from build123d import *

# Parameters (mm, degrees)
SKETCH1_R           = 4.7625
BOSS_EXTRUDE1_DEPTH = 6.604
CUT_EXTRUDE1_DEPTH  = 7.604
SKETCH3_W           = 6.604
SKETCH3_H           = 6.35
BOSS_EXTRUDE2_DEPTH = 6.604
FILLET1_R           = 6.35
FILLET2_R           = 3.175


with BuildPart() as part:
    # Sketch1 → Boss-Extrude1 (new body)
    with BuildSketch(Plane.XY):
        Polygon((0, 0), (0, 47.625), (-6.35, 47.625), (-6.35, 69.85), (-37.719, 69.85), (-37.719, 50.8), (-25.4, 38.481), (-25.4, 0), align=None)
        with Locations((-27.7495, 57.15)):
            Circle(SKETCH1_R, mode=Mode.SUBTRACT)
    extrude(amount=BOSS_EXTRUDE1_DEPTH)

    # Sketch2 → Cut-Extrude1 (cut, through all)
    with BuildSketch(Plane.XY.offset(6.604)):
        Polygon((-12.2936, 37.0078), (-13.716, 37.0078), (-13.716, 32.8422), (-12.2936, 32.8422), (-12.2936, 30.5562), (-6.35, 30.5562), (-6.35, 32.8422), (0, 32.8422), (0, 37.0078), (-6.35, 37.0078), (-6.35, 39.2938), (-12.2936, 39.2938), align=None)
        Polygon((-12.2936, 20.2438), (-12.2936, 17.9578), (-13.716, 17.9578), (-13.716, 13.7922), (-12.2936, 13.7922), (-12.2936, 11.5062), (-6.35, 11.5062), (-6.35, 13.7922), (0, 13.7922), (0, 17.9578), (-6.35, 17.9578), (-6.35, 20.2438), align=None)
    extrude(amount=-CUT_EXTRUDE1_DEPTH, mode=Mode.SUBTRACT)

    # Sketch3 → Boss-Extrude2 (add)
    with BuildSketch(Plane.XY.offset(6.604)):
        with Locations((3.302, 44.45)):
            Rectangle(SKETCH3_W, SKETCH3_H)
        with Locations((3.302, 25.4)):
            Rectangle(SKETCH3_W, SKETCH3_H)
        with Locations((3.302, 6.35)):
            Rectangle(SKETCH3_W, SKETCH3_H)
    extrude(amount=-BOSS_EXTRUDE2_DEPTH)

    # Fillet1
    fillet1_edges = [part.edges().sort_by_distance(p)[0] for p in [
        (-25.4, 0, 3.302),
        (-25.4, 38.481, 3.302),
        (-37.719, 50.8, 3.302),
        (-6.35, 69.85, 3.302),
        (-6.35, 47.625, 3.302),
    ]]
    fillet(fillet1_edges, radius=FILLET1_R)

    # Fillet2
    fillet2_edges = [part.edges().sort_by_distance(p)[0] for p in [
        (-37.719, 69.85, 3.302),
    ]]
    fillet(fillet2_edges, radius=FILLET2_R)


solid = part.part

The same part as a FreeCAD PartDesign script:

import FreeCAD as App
import Part
import Sketcher
Q = App.Units.Quantity


def edges_at(feature, points):
    """Names of the edges that pass closest to the given points."""
    edges = feature.Shape.Edges
    near = lambda p: min(range(len(edges)), key=lambda i: edges[i].distToShape(Part.Vertex(*p))[0])
    return sorted({f"Edge{near(p) + 1}" for p in points})


def add_polygon(sketch, points):
    """Adds a closed chain of lines whose ends are joined by coincident constraints."""
    first, n = sketch.GeometryCount, len(points)
    for a, b in zip(points, points[1:] + points[:1]):
        sketch.addGeometry(Part.LineSegment(App.Vector(*a, 0), App.Vector(*b, 0)), False)
    for i in range(n):
        sketch.addConstraint(Sketcher.Constraint("Coincident", first + i, 2, first + (i + 1) % n, 1))

doc = App.newDocument("Part")
params = doc.addObject("Spreadsheet::Sheet", "Params")
for row, (alias, value) in enumerate([
    ("sketch1_width", "1 in"),
    ("sketch1_diameter", "0.375 in"),
    ("sketch1_width2", "0.25 in"),
    ("sketch1_height", "0.75 in"),
    ("sketch1_width3", "1.235 in"),
    ("pad1_length", "0.26 in"),
    ("sketch2_width", "0.25 in"),
    ("sketch2_height", "0.09 in"),
    ("sketch2_width2", "0.056 in"),
    ("sketch2_width3", "0.234 in"),
    ("sketch2_height2", "0.164 in"),
    ("sketch3_width", "0.26 in"),
    ("sketch3_height", "0.25 in"),
    ("pad2_length", "0.26 in"),
    ("fillet_radius", "0.25 in"),
    ("fillet2_radius", "0.125 in"),
], start=1):
    params.set(f"A{row}", alias)
    params.set(f"B{row}", "=" + value)
    params.setAlias(f"B{row}", alias)

body = doc.addObject("PartDesign::Body", "Body")

sketch1 = body.newObject("Sketcher::SketchObject", "Sketch")
sketch1.AttachmentSupport = (doc.getObject("XY_Plane"), [""])
sketch1.MapMode = "FlatFace"
add_polygon(sketch1, [(0, 0), (0, 47.625), (-6.35, 47.625), (-6.35, 69.85), (-37.719, 69.85), (-37.719, 50.8), (-25.4, 38.481), (-25.4, 0)])
sketch1.addGeometry(Part.Circle(App.Vector(-27.7495, 57.15, 0), App.Vector(0, 0, 1), 4.7625), False)
sketch1.addConstraint([
    Sketcher.Constraint("Vertical", 0),
    Sketcher.Constraint("Horizontal", 1),
    Sketcher.Constraint("Vertical", 2),
    Sketcher.Constraint("Horizontal", 3),
    Sketcher.Constraint("Vertical", 4),
    Sketcher.Constraint("Vertical", 6),
    Sketcher.Constraint("Horizontal", 7),
    Sketcher.Constraint("Coincident", 7, 2, -1, 1),
    Sketcher.Constraint("DistanceX", 7, 1, 7, 2, Q("1 in")),
    Sketcher.Constraint("Diameter", 8, Q("0.375 in")),
    Sketcher.Constraint("DistanceY", -1, 1, 4, 2, Q("2 in")),
    Sketcher.Constraint("Angle", 5, Q("-45 deg")),
    Sketcher.Constraint("DistanceX", 1, 2, 1, 1, Q("0.25 in")),
    Sketcher.Constraint("DistanceY", 4, 2, 4, 1, Q("0.75 in")),
    Sketcher.Constraint("DistanceY", 8, 3, 2, 2, Q("0.5 in")),
    Sketcher.Constraint("DistanceX", 3, 2, 3, 1, Q("1.235 in")),
    Sketcher.Constraint("DistanceY", 0, 1, 0, 2, Q("1.875 in")),
    Sketcher.Constraint("DistanceX", 8, 3, -1, 1, Q("1.0925 in")),
])
sketch1.setExpression("Constraints[16]", "Params.sketch1_width")
sketch1.setExpression("Constraints[17]", "Params.sketch1_diameter")
sketch1.setExpression("Constraints[20]", "Params.sketch1_width2")
sketch1.setExpression("Constraints[21]", "Params.sketch1_height")
sketch1.setExpression("Constraints[23]", "Params.sketch1_width3")
pad1 = body.newObject("PartDesign::Pad", "Pad")
pad1.Profile = sketch1
pad1.setExpression("Length", "Params.pad1_length")

sketch2 = body.newObject("Sketcher::SketchObject", "Sketch001")
sketch2.AttachmentSupport = (doc.getObject("XY_Plane"), [""])
sketch2.MapMode = "FlatFace"
sketch2.AttachmentOffset = App.Placement(App.Vector(0, 0, 0.26 * 25.4), App.Rotation())
add_polygon(sketch2, [(-12.2936, 37.0078), (-13.716, 37.0078), (-13.716, 32.8422), (-12.2936, 32.8422), (-12.2936, 30.5562), (-6.35, 30.5562), (-6.35, 32.8422), (0, 32.8422), (0, 37.0078), (-6.35, 37.0078), (-6.35, 39.2938), (-12.2936, 39.2938)])
add_polygon(sketch2, [(-12.2936, 20.2438), (-12.2936, 17.9578), (-13.716, 17.9578), (-13.716, 13.7922), (-12.2936, 13.7922), (-12.2936, 11.5062), (-6.35, 11.5062), (-6.35, 13.7922), (0, 13.7922), (0, 17.9578), (-6.35, 17.9578), (-6.35, 20.2438)])
sketch2.addConstraint([
    Sketcher.Constraint("Horizontal", 0),
    Sketcher.Constraint("Vertical", 1),
    Sketcher.Constraint("Horizontal", 2),
    Sketcher.Constraint("Vertical", 3),
    Sketcher.Constraint("Horizontal", 4),
    Sketcher.Constraint("Vertical", 5),
    Sketcher.Constraint("Horizontal", 6),
    Sketcher.Constraint("Vertical", 7),
    Sketcher.Constraint("Horizontal", 8),
    Sketcher.Constraint("Vertical", 9),
    Sketcher.Constraint("Horizontal", 10),
    Sketcher.Constraint("Vertical", 11),
    Sketcher.Constraint("Vertical", 12),
    Sketcher.Constraint("Horizontal", 13),
    Sketcher.Constraint("Vertical", 14),
    Sketcher.Constraint("Horizontal", 15),
    Sketcher.Constraint("Vertical", 16),
    Sketcher.Constraint("Horizontal", 17),
    Sketcher.Constraint("Vertical", 18),
    Sketcher.Constraint("Horizontal", 19),
    Sketcher.Constraint("Vertical", 20),
    Sketcher.Constraint("Horizontal", 21),
    Sketcher.Constraint("Vertical", 22),
    Sketcher.Constraint("Horizontal", 23),
    Sketcher.Constraint("PointOnObject", 6, 2, -2),
    Sketcher.Constraint("PointOnObject", 19, 2, -2),
    Sketcher.Constraint("Horizontal", 2, 2, 5, 2),
    Sketcher.Constraint("Horizontal", 0, 2, 7, 2),
    Sketcher.Constraint("Horizontal", 15, 2, 18, 2),
    Sketcher.Constraint("Horizontal", 13, 2, 20, 2),
    Sketcher.Constraint("Vertical", 5, 2, 8, 2),
    Sketcher.Constraint("Vertical", 3, 2, 10, 2),
    Sketcher.Constraint("Vertical", 11, 2, 12, 2),
    Sketcher.Constraint("Vertical", 1, 2, 13, 2),
    Sketcher.Constraint("Vertical", 12, 2, 15, 2),
    Sketcher.Constraint("Vertical", 9, 2, 17, 2),
    Sketcher.Constraint("Vertical", 18, 2, 21, 2),
    Sketcher.Constraint("Equal", 5, 9),
    Sketcher.Constraint("Equal", 11, 12),
    Sketcher.Constraint("Equal", 7, 14),
    Sketcher.Constraint("Equal", 12, 16),
    Sketcher.Constraint("DistanceX", 6, 1, 6, 2, Q("0.25 in")),
    Sketcher.Constraint("DistanceY", 3, 2, 3, 1, Q("0.09 in")),
    Sketcher.Constraint("DistanceX", 0, 2, 0, 1, Q("0.056 in")),
    Sketcher.Constraint("DistanceX", 4, 1, 4, 2, Q("0.234 in")),
    Sketcher.Constraint("DistanceY", 1, 2, 1, 1, Q("0.164 in")),
    Sketcher.Constraint("DistanceY", 14, 2, 3, 2, Q("0.66 in")),
    Sketcher.Constraint("DistanceY", -1, 1, 0, 2, Q("1.457 in")),
])
sketch2.setExpression("Constraints[65]", "Params.sketch2_width")
sketch2.setExpression("Constraints[66]", "Params.sketch2_height")
sketch2.setExpression("Constraints[67]", "Params.sketch2_width2")
sketch2.setExpression("Constraints[68]", "Params.sketch2_width3")
sketch2.setExpression("Constraints[69]", "Params.sketch2_height2")
pocket1 = body.newObject("PartDesign::Pocket", "Pocket")
pocket1.Profile = sketch2
pocket1.Type = "ThroughAll"

sketch3 = body.newObject("Sketcher::SketchObject", "Sketch002")
sketch3.AttachmentSupport = (doc.getObject("XY_Plane"), [""])
sketch3.MapMode = "FlatFace"
sketch3.AttachmentOffset = App.Placement(App.Vector(0, 0, 0.26 * 25.4), App.Rotation())
add_polygon(sketch3, [(0, 47.625), (0, 41.275), (6.604, 41.275), (6.604, 47.625)])
add_polygon(sketch3, [(0, 28.575), (0, 22.225), (6.604, 22.225), (6.604, 28.575)])
add_polygon(sketch3, [(0, 9.525), (0, 3.175), (6.604, 3.175), (6.604, 9.525)])
sketch3.addConstraint([
    Sketcher.Constraint("Vertical", 0),
    Sketcher.Constraint("Horizontal", 1),
    Sketcher.Constraint("Vertical", 2),
    Sketcher.Constraint("Horizontal", 3),
    Sketcher.Constraint("Vertical", 4),
    Sketcher.Constraint("Horizontal", 5),
    Sketcher.Constraint("Vertical", 6),
    Sketcher.Constraint("Horizontal", 7),
    Sketcher.Constraint("Vertical", 8),
    Sketcher.Constraint("Horizontal", 9),
    Sketcher.Constraint("Vertical", 10),
    Sketcher.Constraint("Horizontal", 11),
    Sketcher.Constraint("PointOnObject", 0, 2, -2),
    Sketcher.Constraint("PointOnObject", 4, 2, -2),
    Sketcher.Constraint("PointOnObject", 8, 2, -2),
    Sketcher.Constraint("Vertical", 2, 2, 5, 2),
    Sketcher.Constraint("Vertical", 6, 2, 9, 2),
    Sketcher.Constraint("Equal", 2, 4),
    Sketcher.Constraint("Equal", 6, 8),
    Sketcher.Constraint("DistanceY", 4, 2, 3, 2, Q("1 in")),
    Sketcher.Constraint("DistanceY", 8, 2, 7, 2, Q("1 in")),
    Sketcher.Constraint("DistanceX", 1, 1, 1, 2, Q("0.26 in")),
    Sketcher.Constraint("DistanceY", 0, 2, 0, 1, Q("0.25 in")),
    Sketcher.Constraint("DistanceY", -1, 1, 0, 2, Q("1.625 in")),
])
sketch3.setExpression("Constraints[33]", "Params.sketch3_width")
sketch3.setExpression("Constraints[34]", "Params.sketch3_height")
pad2 = body.newObject("PartDesign::Pad", "Pad001")
pad2.Profile = sketch3
pad2.setExpression("Length", "Params.pad2_length")
pad2.Reversed = True
doc.recompute()

fillet = body.newObject("PartDesign::Fillet", "Fillet")
fillet.Base = (pad2, edges_at(pad2, [
    (-25.4, 0, 3.302),
    (-25.4, 38.481, 3.302),
    (-37.719, 50.8, 3.302),
    (-6.35, 69.85, 3.302),
    (-6.35, 47.625, 3.302),
]))
fillet.setExpression("Radius", "Params.fillet_radius")
doc.recompute()

fillet2 = body.newObject("PartDesign::Fillet", "Fillet001")
fillet2.Base = (fillet, edges_at(fillet, [(-37.719, 69.85, 3.302)]))
fillet2.setExpression("Radius", "Params.fillet2_radius")

doc.recompute()
